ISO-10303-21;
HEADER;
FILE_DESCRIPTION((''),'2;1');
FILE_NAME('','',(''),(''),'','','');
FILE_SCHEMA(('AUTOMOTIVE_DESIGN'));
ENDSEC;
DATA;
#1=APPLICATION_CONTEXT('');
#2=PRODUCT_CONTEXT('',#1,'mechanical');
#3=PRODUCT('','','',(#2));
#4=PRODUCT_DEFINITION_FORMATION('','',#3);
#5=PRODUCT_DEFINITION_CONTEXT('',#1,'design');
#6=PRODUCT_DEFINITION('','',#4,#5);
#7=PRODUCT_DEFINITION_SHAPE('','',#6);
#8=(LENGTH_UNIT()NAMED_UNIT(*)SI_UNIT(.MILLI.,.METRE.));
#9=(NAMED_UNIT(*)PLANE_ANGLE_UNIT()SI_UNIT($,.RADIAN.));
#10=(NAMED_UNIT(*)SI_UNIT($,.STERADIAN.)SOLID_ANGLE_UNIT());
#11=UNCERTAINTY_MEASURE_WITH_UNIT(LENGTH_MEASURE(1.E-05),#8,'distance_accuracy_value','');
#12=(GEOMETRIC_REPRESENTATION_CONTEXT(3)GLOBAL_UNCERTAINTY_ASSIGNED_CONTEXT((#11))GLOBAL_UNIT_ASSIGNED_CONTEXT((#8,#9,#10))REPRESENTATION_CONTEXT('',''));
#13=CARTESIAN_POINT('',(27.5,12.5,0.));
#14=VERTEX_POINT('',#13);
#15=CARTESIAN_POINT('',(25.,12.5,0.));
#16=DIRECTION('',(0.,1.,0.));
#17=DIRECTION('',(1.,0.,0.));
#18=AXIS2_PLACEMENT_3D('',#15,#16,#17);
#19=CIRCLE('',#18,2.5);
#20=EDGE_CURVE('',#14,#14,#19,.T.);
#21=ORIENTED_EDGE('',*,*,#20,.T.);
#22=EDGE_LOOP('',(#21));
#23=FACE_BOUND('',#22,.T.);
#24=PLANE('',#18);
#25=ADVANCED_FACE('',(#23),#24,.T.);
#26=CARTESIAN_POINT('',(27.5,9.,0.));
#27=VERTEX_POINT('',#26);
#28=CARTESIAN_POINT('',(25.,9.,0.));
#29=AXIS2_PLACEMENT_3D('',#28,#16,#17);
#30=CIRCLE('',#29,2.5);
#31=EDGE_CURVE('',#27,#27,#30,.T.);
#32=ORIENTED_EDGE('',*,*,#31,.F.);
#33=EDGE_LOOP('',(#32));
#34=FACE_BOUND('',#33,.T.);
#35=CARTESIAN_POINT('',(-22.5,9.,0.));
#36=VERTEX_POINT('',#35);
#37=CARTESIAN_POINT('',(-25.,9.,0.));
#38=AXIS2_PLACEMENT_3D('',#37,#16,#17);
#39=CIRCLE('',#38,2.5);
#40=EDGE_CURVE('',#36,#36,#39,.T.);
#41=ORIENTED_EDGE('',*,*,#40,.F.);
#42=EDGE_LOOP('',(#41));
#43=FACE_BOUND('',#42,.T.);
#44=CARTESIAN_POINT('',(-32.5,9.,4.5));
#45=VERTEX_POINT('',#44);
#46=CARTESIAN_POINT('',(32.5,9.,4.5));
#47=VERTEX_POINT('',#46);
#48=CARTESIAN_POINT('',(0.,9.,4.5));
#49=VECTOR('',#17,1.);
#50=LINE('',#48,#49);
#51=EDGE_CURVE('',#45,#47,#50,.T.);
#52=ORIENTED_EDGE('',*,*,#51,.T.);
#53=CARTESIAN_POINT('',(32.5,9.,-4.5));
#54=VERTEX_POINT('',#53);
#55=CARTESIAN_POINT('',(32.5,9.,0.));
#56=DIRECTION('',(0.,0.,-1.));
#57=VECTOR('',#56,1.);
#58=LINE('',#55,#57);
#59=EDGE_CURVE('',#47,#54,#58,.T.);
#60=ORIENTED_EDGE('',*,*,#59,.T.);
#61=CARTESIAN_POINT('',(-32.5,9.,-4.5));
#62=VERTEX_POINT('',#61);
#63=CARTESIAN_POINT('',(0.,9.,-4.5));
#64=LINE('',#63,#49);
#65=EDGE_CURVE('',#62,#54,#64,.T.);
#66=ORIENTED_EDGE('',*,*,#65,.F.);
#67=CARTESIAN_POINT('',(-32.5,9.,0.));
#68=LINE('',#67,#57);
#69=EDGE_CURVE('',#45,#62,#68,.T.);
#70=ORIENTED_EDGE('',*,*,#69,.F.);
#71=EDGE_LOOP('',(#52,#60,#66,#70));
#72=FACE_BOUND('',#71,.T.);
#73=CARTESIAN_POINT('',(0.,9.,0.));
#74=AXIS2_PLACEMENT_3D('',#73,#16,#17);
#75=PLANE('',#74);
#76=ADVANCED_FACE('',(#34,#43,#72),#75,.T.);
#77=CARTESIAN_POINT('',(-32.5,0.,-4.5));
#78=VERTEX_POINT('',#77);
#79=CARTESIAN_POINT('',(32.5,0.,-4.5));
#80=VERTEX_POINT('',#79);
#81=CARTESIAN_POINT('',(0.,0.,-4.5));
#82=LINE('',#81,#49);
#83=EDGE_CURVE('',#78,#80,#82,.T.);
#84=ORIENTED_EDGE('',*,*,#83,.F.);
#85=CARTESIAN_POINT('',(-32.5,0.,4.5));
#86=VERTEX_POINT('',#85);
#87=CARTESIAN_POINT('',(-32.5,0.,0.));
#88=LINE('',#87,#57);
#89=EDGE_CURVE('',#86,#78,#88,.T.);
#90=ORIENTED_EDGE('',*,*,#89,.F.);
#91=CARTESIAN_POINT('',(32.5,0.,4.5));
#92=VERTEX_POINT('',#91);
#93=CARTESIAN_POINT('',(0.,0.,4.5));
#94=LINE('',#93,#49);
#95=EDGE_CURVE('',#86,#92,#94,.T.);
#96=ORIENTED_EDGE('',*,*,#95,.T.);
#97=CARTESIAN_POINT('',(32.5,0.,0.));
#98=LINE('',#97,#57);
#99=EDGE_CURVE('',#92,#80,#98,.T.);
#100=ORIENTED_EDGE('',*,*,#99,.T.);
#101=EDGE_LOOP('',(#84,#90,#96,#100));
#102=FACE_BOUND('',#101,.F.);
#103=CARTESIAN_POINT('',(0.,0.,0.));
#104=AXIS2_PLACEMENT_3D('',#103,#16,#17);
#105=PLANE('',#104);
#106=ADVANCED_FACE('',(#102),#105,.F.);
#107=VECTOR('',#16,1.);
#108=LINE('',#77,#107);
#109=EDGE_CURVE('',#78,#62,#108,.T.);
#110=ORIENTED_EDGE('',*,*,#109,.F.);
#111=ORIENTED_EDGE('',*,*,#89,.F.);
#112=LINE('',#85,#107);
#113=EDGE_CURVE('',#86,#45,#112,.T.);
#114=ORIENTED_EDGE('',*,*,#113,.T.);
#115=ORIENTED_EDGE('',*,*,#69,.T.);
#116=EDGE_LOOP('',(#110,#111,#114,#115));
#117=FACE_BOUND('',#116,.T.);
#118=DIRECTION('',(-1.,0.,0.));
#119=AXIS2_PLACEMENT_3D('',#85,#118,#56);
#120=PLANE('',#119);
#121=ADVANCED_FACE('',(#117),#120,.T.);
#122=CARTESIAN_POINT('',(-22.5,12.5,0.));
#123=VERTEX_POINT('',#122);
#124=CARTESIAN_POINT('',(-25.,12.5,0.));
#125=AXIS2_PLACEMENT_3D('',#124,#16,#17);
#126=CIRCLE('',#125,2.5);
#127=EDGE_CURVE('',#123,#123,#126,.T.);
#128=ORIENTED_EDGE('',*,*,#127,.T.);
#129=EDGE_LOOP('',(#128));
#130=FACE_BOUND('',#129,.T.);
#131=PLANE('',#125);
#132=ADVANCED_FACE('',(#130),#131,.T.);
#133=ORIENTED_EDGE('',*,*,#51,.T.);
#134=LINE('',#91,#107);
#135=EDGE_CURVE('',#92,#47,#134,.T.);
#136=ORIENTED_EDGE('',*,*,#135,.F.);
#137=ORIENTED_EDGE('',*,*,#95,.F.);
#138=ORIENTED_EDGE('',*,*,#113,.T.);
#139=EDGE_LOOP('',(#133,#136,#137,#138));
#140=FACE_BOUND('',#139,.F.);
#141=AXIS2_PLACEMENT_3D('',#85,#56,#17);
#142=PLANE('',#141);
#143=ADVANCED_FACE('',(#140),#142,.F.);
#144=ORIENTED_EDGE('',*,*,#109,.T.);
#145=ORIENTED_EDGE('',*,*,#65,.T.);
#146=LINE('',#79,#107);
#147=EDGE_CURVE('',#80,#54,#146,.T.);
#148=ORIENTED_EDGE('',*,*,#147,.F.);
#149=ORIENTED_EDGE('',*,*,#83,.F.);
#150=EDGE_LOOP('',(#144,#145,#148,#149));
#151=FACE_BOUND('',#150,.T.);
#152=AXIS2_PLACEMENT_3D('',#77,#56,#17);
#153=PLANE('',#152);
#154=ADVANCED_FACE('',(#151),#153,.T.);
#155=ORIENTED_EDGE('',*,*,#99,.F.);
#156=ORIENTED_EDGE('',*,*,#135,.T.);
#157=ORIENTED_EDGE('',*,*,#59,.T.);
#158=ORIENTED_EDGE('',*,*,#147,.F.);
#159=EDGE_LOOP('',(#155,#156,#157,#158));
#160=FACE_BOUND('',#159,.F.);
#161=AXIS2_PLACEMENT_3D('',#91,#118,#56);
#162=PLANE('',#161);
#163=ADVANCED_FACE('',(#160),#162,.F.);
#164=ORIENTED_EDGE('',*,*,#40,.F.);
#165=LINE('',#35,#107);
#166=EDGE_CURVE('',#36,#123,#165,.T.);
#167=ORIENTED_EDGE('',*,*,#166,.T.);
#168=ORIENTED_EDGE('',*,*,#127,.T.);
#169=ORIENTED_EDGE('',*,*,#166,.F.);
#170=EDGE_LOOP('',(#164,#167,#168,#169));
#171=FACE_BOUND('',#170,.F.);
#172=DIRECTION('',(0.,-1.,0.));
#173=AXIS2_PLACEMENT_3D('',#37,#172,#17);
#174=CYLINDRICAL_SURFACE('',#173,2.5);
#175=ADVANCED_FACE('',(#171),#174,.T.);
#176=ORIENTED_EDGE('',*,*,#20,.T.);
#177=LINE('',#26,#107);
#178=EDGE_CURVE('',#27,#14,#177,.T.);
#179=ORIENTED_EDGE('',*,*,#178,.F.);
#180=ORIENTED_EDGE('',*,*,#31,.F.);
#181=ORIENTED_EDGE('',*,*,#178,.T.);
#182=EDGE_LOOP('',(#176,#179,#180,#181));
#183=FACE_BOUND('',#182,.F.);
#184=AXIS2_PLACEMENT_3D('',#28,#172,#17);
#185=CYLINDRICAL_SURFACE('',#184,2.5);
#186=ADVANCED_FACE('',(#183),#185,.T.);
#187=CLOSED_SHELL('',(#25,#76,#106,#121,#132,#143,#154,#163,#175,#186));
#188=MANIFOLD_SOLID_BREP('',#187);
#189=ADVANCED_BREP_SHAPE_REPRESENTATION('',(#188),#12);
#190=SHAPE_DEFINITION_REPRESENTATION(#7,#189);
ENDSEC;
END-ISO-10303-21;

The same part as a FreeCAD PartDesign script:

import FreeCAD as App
import Part
import Sketcher

V = App.Vector
Q = App.Units.Quantity

doc = App.newDocument("Part")
body = doc.addObject("PartDesign::Body", "Body")

# Sketch on XZ plane
sketch1 = body.newObject("Sketcher::SketchObject", "Sketch")
sketch1.AttachmentSupport = (doc.getObject("XZ_Plane"), [""])
sketch1.MapMode = "FlatFace"
sketch1.addGeometry([
    Part.LineSegment(V(-32, -4, 0), V(-32, 4, 0)),
    Part.LineSegment(V(-32, 4, 0), V(32, 4, 0)),
    Part.LineSegment(V(32, 4, 0), V(32, -4, 0)),
    Part.LineSegment(V(32, -4, 0), V(-32, -4, 0)),
], False)
sketch1.addConstraint([
    Sketcher.Constraint("Coincident", 0, 2, 1, 1),
    Sketcher.Constraint("Coincident", 1, 2, 2, 1),
    Sketcher.Constraint("Coincident", 2, 2, 3, 1),
    Sketcher.Constraint("Coincident", 3, 2, 0, 1),
    Sketcher.Constraint("Vertical", 0),
    Sketcher.Constraint("Horizontal", 1),
    Sketcher.Constraint("Vertical", 2),
    Sketcher.Constraint("Horizontal", 3),
    Sketcher.Constraint("Symmetric", 0, 2, 2, 2, -1, 1),
    Sketcher.Constraint("DistanceX", 1, 1, 1, 2, Q("65 mm")),
    Sketcher.Constraint("DistanceY", 0, 1, 0, 2, Q("9 mm")),
])
pad1 = body.newObject("PartDesign::Pad", "Pad")
pad1.Profile = sketch1
pad1.Length = 9
pad1.Reversed = True

# Sketch on XZ plane
sketch2 = body.newObject("Sketcher::SketchObject", "Sketch001")
sketch2.AttachmentSupport = (doc.getObject("XZ_Plane"), [""])
sketch2.MapMode = "FlatFace"
sketch2.AttachmentOffset = App.Placement(V(0, 0, -9), App.Rotation())
sketch2.addGeometry(Part.Circle(V(-25, 0, 0), V(0, 0, 1), 2.5), False)
sketch2.addConstraint([
    Sketcher.Constraint("PointOnObject", 0, 3, -1),
    Sketcher.Constraint("Diameter", 0, Q("5 mm")),
    Sketcher.Constraint("DistanceX", 0, 3, -1, 1, Q("25 mm")),
])
pad2 = body.newObject("PartDesign::Pad", "Pad001")
pad2.Profile = sketch2
pad2.Length = 3.5
pad2.Reversed = True

# Sketch on XZ plane
sketch3 = body.newObject("Sketcher::SketchObject", "Sketch002")
sketch3.AttachmentSupport = (doc.getObject("XZ_Plane"), [""])
sketch3.MapMode = "FlatFace"
sketch3.AttachmentOffset = App.Placement(V(0, 0, -9), App.Rotation())
sketch3.addGeometry(Part.Circle(V(25, 0, 0), V(0, 0, 1), 2.5), False)
sketch3.addConstraint([
    Sketcher.Constraint("PointOnObject", 0, 3, -1),
    Sketcher.Constraint("Diameter", 0, Q("5 mm")),
    Sketcher.Constraint("DistanceX", -1, 1, 0, 3, Q("25 mm")),
])
pad3 = body.newObject("PartDesign::Pad", "Pad002")
pad3.Profile = sketch3
pad3.Length = 3.5
pad3.Reversed = True

doc.recompute()
